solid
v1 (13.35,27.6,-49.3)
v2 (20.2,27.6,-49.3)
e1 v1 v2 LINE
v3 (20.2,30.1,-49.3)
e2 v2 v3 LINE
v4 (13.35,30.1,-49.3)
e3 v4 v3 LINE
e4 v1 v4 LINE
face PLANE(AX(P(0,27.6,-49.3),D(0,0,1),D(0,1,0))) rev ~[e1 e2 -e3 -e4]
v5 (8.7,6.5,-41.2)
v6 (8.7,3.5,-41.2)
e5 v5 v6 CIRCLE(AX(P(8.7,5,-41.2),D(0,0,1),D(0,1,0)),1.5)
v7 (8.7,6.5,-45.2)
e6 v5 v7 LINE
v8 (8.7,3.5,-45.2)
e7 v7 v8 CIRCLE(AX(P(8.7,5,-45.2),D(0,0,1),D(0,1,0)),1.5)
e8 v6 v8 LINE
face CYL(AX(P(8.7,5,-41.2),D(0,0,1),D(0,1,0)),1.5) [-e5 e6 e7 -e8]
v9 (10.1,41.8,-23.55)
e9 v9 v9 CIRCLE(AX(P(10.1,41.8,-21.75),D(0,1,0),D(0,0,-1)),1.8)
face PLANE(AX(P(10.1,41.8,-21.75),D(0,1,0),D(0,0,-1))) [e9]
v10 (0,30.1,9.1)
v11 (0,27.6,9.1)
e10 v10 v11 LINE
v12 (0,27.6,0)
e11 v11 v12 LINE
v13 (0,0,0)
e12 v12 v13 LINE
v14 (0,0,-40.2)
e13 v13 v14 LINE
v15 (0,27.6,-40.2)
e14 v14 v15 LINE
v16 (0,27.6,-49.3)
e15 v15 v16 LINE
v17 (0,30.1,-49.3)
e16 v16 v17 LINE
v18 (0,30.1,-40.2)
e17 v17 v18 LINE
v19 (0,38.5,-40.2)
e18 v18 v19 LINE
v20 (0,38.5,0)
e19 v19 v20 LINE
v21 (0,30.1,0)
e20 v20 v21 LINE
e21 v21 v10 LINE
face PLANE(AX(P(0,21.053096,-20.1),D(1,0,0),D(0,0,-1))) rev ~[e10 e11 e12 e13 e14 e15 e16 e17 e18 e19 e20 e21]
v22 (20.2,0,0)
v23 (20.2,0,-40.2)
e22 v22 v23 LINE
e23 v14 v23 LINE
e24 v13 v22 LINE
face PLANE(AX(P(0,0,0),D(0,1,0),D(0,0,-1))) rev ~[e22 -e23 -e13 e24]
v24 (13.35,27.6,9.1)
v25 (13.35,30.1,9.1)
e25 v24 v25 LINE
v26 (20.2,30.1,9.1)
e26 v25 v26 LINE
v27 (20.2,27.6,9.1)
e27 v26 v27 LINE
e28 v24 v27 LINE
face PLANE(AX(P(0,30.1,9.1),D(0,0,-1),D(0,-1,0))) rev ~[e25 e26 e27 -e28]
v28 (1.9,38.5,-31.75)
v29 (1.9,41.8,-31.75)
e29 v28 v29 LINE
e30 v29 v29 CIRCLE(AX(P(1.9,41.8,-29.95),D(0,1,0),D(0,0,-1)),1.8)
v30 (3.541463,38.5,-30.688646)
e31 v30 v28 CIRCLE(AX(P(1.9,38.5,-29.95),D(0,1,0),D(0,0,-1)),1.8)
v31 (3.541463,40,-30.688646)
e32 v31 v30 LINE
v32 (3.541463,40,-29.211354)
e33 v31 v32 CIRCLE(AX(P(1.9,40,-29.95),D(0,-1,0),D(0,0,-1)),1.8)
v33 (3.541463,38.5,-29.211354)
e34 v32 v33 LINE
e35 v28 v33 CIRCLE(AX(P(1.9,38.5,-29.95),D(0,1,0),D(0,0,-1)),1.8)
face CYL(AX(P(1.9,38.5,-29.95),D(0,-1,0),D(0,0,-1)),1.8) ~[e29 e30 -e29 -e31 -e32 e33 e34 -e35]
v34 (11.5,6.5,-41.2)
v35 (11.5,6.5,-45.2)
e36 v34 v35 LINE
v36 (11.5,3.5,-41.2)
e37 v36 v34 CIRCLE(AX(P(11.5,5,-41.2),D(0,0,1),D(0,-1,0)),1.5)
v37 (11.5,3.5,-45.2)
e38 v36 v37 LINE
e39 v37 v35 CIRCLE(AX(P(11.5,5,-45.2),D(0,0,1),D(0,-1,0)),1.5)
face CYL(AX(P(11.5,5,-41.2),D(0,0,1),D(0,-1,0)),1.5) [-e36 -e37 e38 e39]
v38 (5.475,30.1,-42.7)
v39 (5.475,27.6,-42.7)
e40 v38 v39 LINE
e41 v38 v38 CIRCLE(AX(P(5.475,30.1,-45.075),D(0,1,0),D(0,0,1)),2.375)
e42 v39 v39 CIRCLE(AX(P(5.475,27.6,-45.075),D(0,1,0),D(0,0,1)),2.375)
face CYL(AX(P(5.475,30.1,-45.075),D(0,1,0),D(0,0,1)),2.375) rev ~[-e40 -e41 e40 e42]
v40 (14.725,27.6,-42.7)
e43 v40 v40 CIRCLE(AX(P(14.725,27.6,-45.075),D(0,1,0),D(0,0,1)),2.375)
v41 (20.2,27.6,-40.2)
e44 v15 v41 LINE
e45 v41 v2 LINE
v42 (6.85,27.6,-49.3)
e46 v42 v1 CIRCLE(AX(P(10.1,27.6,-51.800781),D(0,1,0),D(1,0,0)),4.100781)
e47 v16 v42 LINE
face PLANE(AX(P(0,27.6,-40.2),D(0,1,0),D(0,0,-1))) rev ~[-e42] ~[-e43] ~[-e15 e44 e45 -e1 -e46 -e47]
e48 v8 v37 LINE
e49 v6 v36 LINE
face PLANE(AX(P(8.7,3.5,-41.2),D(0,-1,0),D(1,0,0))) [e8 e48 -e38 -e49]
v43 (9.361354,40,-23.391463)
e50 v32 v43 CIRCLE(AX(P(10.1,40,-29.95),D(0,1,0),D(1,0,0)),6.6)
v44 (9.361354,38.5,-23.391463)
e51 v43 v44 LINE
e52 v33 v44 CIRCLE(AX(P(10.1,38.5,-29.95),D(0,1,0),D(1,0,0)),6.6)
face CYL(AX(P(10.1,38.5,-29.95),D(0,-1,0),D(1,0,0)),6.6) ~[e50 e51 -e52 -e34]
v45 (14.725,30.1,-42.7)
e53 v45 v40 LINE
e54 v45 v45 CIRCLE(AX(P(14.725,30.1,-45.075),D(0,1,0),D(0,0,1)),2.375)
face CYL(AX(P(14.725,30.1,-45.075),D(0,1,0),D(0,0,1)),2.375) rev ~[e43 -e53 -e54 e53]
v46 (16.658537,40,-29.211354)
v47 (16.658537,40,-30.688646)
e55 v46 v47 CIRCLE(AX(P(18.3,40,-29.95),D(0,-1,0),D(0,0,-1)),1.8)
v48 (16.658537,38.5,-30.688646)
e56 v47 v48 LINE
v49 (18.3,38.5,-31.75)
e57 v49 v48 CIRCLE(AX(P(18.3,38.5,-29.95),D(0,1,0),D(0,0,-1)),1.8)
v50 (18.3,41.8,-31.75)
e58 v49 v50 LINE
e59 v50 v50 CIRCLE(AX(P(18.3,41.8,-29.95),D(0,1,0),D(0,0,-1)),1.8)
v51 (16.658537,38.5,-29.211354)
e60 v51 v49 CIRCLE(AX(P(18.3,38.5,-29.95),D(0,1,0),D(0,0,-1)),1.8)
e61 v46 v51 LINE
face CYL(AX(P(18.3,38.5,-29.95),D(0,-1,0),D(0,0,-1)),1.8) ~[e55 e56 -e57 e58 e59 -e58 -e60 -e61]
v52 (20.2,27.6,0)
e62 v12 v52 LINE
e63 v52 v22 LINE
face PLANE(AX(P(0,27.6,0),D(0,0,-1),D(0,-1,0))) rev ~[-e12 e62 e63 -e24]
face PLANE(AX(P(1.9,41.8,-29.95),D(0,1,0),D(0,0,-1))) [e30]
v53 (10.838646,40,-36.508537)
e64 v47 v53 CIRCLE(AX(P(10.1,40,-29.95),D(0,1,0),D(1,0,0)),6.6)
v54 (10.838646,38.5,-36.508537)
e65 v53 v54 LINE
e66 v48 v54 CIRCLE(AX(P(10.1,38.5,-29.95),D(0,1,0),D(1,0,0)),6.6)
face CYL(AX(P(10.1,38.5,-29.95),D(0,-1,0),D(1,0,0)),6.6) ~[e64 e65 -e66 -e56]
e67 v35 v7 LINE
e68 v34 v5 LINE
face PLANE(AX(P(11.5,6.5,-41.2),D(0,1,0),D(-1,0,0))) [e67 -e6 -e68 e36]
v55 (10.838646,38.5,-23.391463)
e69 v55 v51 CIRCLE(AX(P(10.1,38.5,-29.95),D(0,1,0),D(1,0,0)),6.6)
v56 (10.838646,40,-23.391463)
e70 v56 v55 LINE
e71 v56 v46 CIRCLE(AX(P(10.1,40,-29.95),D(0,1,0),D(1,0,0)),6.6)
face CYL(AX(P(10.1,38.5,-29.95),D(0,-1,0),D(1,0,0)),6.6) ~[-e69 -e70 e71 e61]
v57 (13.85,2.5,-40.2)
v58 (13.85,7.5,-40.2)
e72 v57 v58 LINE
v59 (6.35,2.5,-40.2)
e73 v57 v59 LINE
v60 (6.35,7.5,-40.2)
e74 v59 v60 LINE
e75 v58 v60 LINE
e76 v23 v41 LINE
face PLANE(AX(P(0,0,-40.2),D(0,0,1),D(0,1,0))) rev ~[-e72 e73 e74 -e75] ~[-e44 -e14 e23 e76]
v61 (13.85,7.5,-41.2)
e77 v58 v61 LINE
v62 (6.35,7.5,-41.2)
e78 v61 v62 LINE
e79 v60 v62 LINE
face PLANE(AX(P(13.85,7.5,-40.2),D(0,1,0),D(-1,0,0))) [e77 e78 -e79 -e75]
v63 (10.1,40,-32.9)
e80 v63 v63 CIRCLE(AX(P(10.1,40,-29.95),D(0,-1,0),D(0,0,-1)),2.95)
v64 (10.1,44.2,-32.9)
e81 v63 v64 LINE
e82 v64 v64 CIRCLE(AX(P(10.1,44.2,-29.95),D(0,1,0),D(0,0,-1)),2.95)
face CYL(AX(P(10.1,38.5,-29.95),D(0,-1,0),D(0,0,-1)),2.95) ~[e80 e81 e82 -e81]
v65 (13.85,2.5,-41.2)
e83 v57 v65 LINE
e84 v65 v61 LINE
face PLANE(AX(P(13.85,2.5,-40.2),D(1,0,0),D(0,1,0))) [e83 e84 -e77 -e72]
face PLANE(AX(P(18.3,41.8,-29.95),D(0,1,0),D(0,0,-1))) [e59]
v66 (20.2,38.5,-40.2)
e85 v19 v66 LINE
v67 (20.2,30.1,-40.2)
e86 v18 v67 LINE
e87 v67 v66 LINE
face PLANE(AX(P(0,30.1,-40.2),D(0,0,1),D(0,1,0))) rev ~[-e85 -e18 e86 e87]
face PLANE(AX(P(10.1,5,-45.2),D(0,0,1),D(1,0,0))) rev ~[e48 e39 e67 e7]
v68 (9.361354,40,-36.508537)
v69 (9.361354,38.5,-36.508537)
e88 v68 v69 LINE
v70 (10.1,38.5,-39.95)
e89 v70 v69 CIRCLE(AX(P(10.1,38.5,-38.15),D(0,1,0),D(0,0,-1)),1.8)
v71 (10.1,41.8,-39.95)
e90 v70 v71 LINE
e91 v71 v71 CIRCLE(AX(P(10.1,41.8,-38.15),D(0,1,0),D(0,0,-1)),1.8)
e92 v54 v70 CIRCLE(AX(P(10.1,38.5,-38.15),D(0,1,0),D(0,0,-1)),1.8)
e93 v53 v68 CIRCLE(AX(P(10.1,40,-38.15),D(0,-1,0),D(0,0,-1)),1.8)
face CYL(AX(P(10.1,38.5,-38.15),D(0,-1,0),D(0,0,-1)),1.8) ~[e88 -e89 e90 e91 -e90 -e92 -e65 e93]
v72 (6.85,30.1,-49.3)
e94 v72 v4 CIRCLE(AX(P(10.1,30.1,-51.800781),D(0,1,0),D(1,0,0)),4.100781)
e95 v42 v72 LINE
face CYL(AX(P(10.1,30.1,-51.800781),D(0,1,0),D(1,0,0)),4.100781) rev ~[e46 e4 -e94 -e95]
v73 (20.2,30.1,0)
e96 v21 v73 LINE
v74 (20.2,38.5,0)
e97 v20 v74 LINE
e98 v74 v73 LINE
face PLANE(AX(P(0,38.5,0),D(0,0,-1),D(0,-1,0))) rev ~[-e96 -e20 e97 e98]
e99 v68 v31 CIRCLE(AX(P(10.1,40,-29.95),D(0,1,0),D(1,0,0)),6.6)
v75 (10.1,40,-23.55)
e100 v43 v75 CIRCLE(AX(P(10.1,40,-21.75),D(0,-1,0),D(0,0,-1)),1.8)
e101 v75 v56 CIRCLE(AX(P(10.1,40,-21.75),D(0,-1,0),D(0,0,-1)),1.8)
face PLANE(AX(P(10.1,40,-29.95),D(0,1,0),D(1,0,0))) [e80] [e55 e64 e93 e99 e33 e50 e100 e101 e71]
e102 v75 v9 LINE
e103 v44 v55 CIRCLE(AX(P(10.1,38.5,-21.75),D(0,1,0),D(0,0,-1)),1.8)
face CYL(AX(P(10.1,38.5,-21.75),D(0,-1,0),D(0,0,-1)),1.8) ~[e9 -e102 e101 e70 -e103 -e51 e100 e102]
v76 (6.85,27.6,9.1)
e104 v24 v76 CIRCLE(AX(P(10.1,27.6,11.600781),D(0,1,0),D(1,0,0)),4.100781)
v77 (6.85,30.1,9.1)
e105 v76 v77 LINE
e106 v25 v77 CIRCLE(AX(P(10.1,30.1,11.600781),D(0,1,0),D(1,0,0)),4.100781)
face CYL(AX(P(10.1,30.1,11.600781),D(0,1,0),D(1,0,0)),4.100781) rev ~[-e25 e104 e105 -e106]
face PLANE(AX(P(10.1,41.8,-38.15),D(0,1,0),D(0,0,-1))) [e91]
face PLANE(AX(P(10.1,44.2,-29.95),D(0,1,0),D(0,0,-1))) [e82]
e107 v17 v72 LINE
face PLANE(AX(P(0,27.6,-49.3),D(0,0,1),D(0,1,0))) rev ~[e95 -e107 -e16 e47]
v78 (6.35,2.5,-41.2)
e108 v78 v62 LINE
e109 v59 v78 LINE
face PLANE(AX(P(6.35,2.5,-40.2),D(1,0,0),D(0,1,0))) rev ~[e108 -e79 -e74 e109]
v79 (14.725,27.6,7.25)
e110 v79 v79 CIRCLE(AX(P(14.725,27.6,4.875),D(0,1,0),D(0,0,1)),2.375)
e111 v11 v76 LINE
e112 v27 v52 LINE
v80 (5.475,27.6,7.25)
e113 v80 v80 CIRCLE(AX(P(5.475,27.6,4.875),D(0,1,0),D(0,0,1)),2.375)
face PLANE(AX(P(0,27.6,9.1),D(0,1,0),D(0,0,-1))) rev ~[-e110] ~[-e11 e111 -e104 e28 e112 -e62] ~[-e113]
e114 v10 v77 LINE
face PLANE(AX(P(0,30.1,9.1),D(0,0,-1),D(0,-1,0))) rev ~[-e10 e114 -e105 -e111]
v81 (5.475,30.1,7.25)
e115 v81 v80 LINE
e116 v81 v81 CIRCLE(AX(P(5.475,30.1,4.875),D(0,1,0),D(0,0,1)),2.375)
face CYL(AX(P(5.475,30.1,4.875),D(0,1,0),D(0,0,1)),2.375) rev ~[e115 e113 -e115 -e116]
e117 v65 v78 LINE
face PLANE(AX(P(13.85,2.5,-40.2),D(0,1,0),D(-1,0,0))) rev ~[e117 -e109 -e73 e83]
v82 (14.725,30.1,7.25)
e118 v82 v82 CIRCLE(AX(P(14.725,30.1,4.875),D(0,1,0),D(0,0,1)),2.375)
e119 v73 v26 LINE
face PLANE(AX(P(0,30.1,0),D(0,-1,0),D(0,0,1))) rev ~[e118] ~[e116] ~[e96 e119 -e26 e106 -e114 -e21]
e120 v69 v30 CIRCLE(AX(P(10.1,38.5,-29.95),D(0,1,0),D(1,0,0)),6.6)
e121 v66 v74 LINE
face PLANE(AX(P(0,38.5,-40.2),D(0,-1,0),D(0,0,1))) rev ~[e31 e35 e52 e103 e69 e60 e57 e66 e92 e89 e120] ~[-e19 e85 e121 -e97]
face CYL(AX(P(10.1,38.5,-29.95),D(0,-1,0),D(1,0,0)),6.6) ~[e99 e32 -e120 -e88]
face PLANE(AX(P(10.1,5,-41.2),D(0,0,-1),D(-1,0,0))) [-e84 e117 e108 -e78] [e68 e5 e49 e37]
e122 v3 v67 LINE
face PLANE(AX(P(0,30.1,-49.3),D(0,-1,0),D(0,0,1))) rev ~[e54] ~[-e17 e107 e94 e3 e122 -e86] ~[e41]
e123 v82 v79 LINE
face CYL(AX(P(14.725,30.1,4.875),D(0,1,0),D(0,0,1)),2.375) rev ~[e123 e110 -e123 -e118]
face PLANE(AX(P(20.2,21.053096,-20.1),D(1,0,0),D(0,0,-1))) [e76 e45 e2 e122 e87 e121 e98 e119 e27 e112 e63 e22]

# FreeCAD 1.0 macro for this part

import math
import FreeCAD as App
import Part
import Sketcher

V = App.Vector
Q = App.Units.Quantity

doc = App.newDocument("Part")
params = doc.addObject("Spreadsheet::Sheet", "Params")
for row, (alias, value) in enumerate([
    ("sketch1_width", "27.6 mm"),
    ("sketch1_width2", "2.5 mm"),
    ("sketch1_width3", "8.4 mm"),
    ("sketch1_height", "40.2 mm"),
    ("sketch1_height2", "9.1 mm"),
    ("pad1_length", "20.2 mm"),
    ("sketch2_diameter", "4.75 mm"),
    ("sketch3_diameter", "5.9 mm"),
    ("pad2_length", "5.7 mm"),
    ("sketch4_diameter", "3.6 mm"),
    ("pad3_length", "3.3 mm"),
    ("sketch5_diameter", "13.2 mm"),
    ("pad4_length", "1.5 mm"),
    ("sketch6_height", "5 mm"),
    ("sketch6_width", "7.5 mm"),
    ("pad5_length", "1 mm"),
    ("sketch7_radius", "1.5 mm"),
    ("sketch7_width", "2.8 mm"),
    ("pad6_length", "4 mm"),
], start=1):
    params.set(f"A{row}", alias)
    params.set(f"B{row}", "=" + value)
    params.setAlias(f"B{row}", alias)

body = doc.addObject("PartDesign::Body", "Body")

# Sketch on YZ plane
sketch1 = body.newObject("Sketcher::SketchObject", "Sketch")
sketch1.AttachmentSupport = (doc.getObject("YZ_Plane"), [""])
sketch1.MapMode = "FlatFace"
sketch1.addGeometry([
    Part.LineSegment(V(0, 0, 0), V(0, -40.2, 0)),  # 0
    Part.LineSegment(V(0, -40.2, 0), V(27.6, -40.2, 0)),  # 1
    Part.LineSegment(V(27.6, -40.2, 0), V(27.6, -49.3, 0)),  # 2
    Part.LineSegment(V(27.6, -49.3, 0), V(30.1, -49.3, 0)),  # 3
    Part.LineSegment(V(30.1, -49.3, 0), V(30.1, -40.2, 0)),  # 4
    Part.LineSegment(V(30.1, -40.2, 0), V(38.5, -40.2, 0)),  # 5
    Part.LineSegment(V(38.5, -40.2, 0), V(38.5, 0, 0)),  # 6
    Part.LineSegment(V(38.5, 0, 0), V(30.1, 0, 0)),  # 7
    Part.LineSegment(V(30.1, 0, 0), V(30.1, 9.1, 0)),  # 8
    Part.LineSegment(V(30.1, 9.1, 0), V(27.6, 9.1, 0)),  # 9
    Part.LineSegment(V(27.6, 9.1, 0), V(27.6, 0, 0)),  # 10
    Part.LineSegment(V(27.6, 0, 0), V(0, 0, 0)),  # 11
], False)
sketch1.addConstraint([
    Sketcher.Constraint("Coincident", 0, 2, 1, 1),
    Sketcher.Constraint("Coincident", 1, 2, 2, 1),
    Sketcher.Constraint("Coincident", 2, 2, 3, 1),
    Sketcher.Constraint("Coincident", 3, 2, 4, 1),
    Sketcher.Constraint("Coincident", 4, 2, 5, 1),
    Sketcher.Constraint("Coincident", 5, 2, 6, 1),
    Sketcher.Constraint("Coincident", 6, 2, 7, 1),
    Sketcher.Constraint("Coincident", 7, 2, 8, 1),
    Sketcher.Constraint("Coincident", 8, 2, 9, 1),
    Sketcher.Constraint("Coincident", 9, 2, 10, 1),
    Sketcher.Constraint("Coincident", 10, 2, 11, 1),
    Sketcher.Constraint("Coincident", 11, 2, 0, 1),
    Sketcher.Constraint("Vertical", 0),
    Sketcher.Constraint("Horizontal", 1),
    Sketcher.Constraint("Vertical", 2),
    Sketcher.Constraint("Horizontal", 3),
    Sketcher.Constraint("Vertical", 4),
    Sketcher.Constraint("Horizontal", 5),
    Sketcher.Constraint("Vertical", 6),
    Sketcher.Constraint("Horizontal", 7),
    Sketcher.Constraint("Vertical", 8),
    Sketcher.Constraint("Horizontal", 9),
    Sketcher.Constraint("Vertical", 10),
    Sketcher.Constraint("Horizontal", 11),
    Sketcher.Constraint("Coincident", 11, 2, -1, 1),
    Sketcher.Constraint("PointOnObject", 6, 2, -1),
    Sketcher.Constraint("Horizontal", 1, 2, 4, 2),
    Sketcher.Constraint("Vertical", 4, 2, 7, 2),
    Sketcher.Constraint("Vertical", 2, 2, 9, 2),
    Sketcher.Constraint("Equal", 4, 8),
    Sketcher.Constraint("DistanceX", 1, 1, 1, 2, Q("27.6 mm")),
    Sketcher.Constraint("DistanceX", 3, 1, 3, 2, Q("2.5 mm")),
    Sketcher.Constraint("DistanceX", 5, 1, 5, 2, Q("8.4 mm")),
    Sketcher.Constraint("DistanceY", 0, 2, 0, 1, Q("40.2 mm")),
    Sketcher.Constraint("DistanceY", 2, 2, 2, 1, Q("9.1 mm")),
])
sketch1.setExpression("Constraints[30]", "Params.sketch1_width")
sketch1.setExpression("Constraints[31]", "Params.sketch1_width2")
sketch1.setExpression("Constraints[32]", "Params.sketch1_width3")
sketch1.setExpression("Constraints[33]", "Params.sketch1_height")
sketch1.setExpression("Constraints[34]", "Params.sketch1_height2")
pad1 = body.newObject("PartDesign::Pad", "Pad")
pad1.Profile = sketch1
pad1.setExpression("Length", "Params.pad1_length")

# Sketch on XZ plane
sketch2 = body.newObject("Sketcher::SketchObject", "Sketch001")
sketch2.AttachmentSupport = (doc.getObject("XZ_Plane"), [""])
sketch2.MapMode = "FlatFace"
sketch2.AttachmentOffset = App.Placement(V(0, 0, -30.1), App.Rotation())
sketch2.addGeometry([
    Part.Circle(V(10.1, -51.800781, 0), V(0, 0, 1), 4.100781),  # 0
    Part.Circle(V(5.475, -45.075, 0), V(0, 0, 1), 2.375),  # 1
    Part.Circle(V(14.725, -45.075, 0), V(0, 0, 1), 2.375),  # 2
    Part.Circle(V(14.725, 4.875, 0), V(0, 0, 1), 2.375),  # 3
    Part.Circle(V(5.475, 4.875, 0), V(0, 0, 1), 2.375),  # 4
    Part.Circle(V(10.1, 11.600781, 0), V(0, 0, 1), 4.100781),  # 5
], False)
sketch2.addConstraint([
    Sketcher.Constraint("Equal", 1, 2),
    Sketcher.Constraint("Equal", 2, 3),
    Sketcher.Constraint("Equal", 3, 4),
    Sketcher.Constraint("Equal", 0, 5),
    Sketcher.Constraint("Horizontal", 1, 3, 2, 3),
    Sketcher.Constraint("Horizontal", 3, 3, 4, 3),
    Sketcher.Constraint("Vertical", 2, 3, 3, 3),
    Sketcher.Constraint("Vertical", 1, 3, 4, 3),
    Sketcher.Constraint("Vertical", 0, 3, 5, 3),
    Sketcher.Constraint("Diameter", 1, Q("4.75 mm")),
    Sketcher.Constraint("DistanceX", -1, 1, 0, 3, Q("10.1 mm")),
    Sketcher.Constraint("DistanceX", 1, 3, 2, 3, Q("9.25 mm")),
    Sketcher.Constraint("DistanceY", 2, 3, 3, 3, Q("49.95 mm")),
    Sketcher.Constraint("Diameter", 0, Q("8.201562 mm")),
    Sketcher.Constraint("DistanceX", -1, 1, 1, 3, Q("5.475 mm")),
    Sketcher.Constraint("DistanceY", 1, 3, -1, 1, Q("45.075 mm")),
    Sketcher.Constraint("DistanceY", 0, 3, -1, 1, Q("51.800781 mm")),
    Sketcher.Constraint("DistanceY", -1, 1, 5, 3, Q("11.600781 mm")),
])
sketch2.setExpression("Constraints[9]", "Params.sketch2_diameter")
pocket1 = body.newObject("PartDesign::Pocket", "Pocket")
pocket1.Profile = sketch2
pocket1.Type = "ThroughAll"
pocket1.Reversed = True

# Sketch on XZ plane
sketch3 = body.newObject("Sketcher::SketchObject", "Sketch002")
sketch3.AttachmentSupport = (doc.getObject("XZ_Plane"), [""])
sketch3.MapMode = "FlatFace"
sketch3.AttachmentOffset = App.Placement(V(0, 0, -38.5), App.Rotation())
sketch3.addGeometry(Part.Circle(V(10.1, -29.95, 0), V(0, 0, 1), 2.95), False)
sketch3.addConstraint([
    Sketcher.Constraint("Diameter", 0, Q("5.9 mm")),
    Sketcher.Constraint("DistanceX", -1, 1, 0, 3, Q("10.1 mm")),
    Sketcher.Constraint("DistanceY", 0, 3, -1, 1, Q("29.95 mm")),
])
sketch3.setExpression("Constraints[0]", "Params.sketch3_diameter")
pad2 = body.newObject("PartDesign::Pad", "Pad001")
pad2.Profile = sketch3
pad2.setExpression("Length", "Params.pad2_length")
pad2.Reversed = True

# Sketch on XZ plane
sketch4 = body.newObject("Sketcher::SketchObject", "Sketch003")
sketch4.AttachmentSupport = (doc.getObject("XZ_Plane"), [""])
sketch4.MapMode = "FlatFace"
sketch4.AttachmentOffset = App.Placement(V(0, 0, -38.5), App.Rotation())
sketch4.addGeometry([
    Part.Circle(V(1.9, -29.95, 0), V(0, 0, 1), 1.8),
    Part.Circle(V(10.1, -38.15, 0), V(0, 0, 1), 1.8),
    Part.Circle(V(18.3, -29.95, 0), V(0, 0, 1), 1.8),
    Part.Circle(V(10.1, -21.75, 0), V(0, 0, 1), 1.8),
], False)
sketch4.addConstraint([
    Sketcher.Constraint("Equal", 0, 1),
    Sketcher.Constraint("Equal", 1, 2),
    Sketcher.Constraint("Equal", 2, 3),
    Sketcher.Constraint("Horizontal", 0, 3, 2, 3),
    Sketcher.Constraint("Vertical", 1, 3, 3, 3),
    Sketcher.Constraint("Diameter", 0, Q("3.6 mm")),
    Sketcher.Constraint("DistanceX", -1, 1, 0, 3, Q("1.9 mm")),
    Sketcher.Constraint("DistanceX", -1, 1, 1, 3, Q("10.1 mm")),
    Sketcher.Constraint("DistanceX", -1, 1, 2, 3, Q("18.3 mm")),
    Sketcher.Constraint("DistanceY", 1, 3, 0, 3, Q("8.2 mm")),
    Sketcher.Constraint("DistanceY", 0, 3, 3, 3, Q("8.2 mm")),
    Sketcher.Constraint("DistanceY", 0, 3, -1, 1, Q("29.95 mm")),
])
sketch4.setExpression("Constraints[5]", "Params.sketch4_diameter")
pad3 = body.newObject("PartDesign::Pad", "Pad002")
pad3.Profile = sketch4
pad3.setExpression("Length", "Params.pad3_length")
pad3.Reversed = True

# Sketch on XZ plane
sketch5 = body.newObject("Sketcher::SketchObject", "Sketch004")
sketch5.AttachmentSupport = (doc.getObject("XZ_Plane"), [""])
sketch5.MapMode = "FlatFace"
sketch5.AttachmentOffset = App.Placement(V(0, 0, -38.5), App.Rotation())
sketch5.addGeometry(Part.Circle(V(10.1, -29.95, 0), V(0, 0, 1), 6.6), False)
sketch5.addConstraint([
    Sketcher.Constraint("Diameter", 0, Q("13.2 mm")),
    Sketcher.Constraint("DistanceX", -1, 1, 0, 3, Q("10.1 mm")),
    Sketcher.Constraint("DistanceY", 0, 3, -1, 1, Q("29.95 mm")),
])
sketch5.setExpression("Constraints[0]", "Params.sketch5_diameter")
pad4 = body.newObject("PartDesign::Pad", "Pad003")
pad4.Profile = sketch5
pad4.setExpression("Length", "Params.pad4_length")
pad4.Reversed = True

# Sketch on XY plane
sketch6 = body.newObject("Sketcher::SketchObject", "Sketch005")
sketch6.AttachmentSupport = (doc.getObject("XY_Plane"), [""])
sketch6.MapMode = "FlatFace"
sketch6.AttachmentOffset = App.Placement(V(0, 0, -40.2), App.Rotation())
sketch6.addGeometry([
    Part.LineSegment(V(13.85, 7.5, 0), V(13.85, 2.5, 0)),
    Part.LineSegment(V(13.85, 2.5, 0), V(6.35, 2.5, 0)),
    Part.LineSegment(V(6.35, 2.5, 0), V(6.35, 7.5, 0)),
    Part.LineSegment(V(6.35, 7.5, 0), V(13.85, 7.5, 0)),
], False)
sketch6.addConstraint([
    Sketcher.Constraint("Coincident", 0, 2, 1, 1),
    Sketcher.Constraint("Coincident", 1, 2, 2, 1),
    Sketcher.Constraint("Coincident", 2, 2, 3, 1),
    Sketcher.Constraint("Coincident", 3, 2, 0, 1),
    Sketcher.Constraint("Vertical", 0),
    Sketcher.Constraint("Horizontal", 1),
    Sketcher.Constraint("Vertical", 2),
    Sketcher.Constraint("Horizontal", 3),
    Sketcher.Constraint("DistanceY", 0, 2, 0, 1, Q("5 mm")),
    Sketcher.Constraint("DistanceX", 1, 2, 1, 1, Q("7.5 mm")),
    Sketcher.Constraint("DistanceY", -1, 1, 0, 2, Q("2.5 mm")),
    Sketcher.Constraint("DistanceX", -1, 1, 0, 2, Q("13.85 mm")),
])
sketch6.setExpression("Constraints[8]", "Params.sketch6_height")
sketch6.setExpression("Constraints[9]", "Params.sketch6_width")
pad5 = body.newObject("PartDesign::Pad", "Pad004")
pad5.Profile = sketch6
pad5.setExpression("Length", "Params.pad5_length")
pad5.Reversed = True

# Sketch on XY plane
sketch7 = body.newObject("Sketcher::SketchObject", "Sketch006")
sketch7.AttachmentSupport = (doc.getObject("XY_Plane"), [""])
sketch7.MapMode = "FlatFace"
sketch7.AttachmentOffset = App.Placement(V(0, 0, -41.2), App.Rotation())
sketch7.addGeometry([
    Part.LineSegment(V(8.7, 6.5, 0), V(11.5, 6.5, 0)),
    Part.ArcOfCircle(Part.Circle(V(11.5, 5, 0), V(0, 0, 1), 1.5), math.radians(-90), math.radians(90)),
    Part.LineSegment(V(11.5, 3.5, 0), V(8.7, 3.5, 0)),
    Part.ArcOfCircle(Part.Circle(V(8.7, 5, 0), V(0, 0, 1), 1.5), math.radians(90), math.radians(270)),
], False)
sketch7.addConstraint([
    Sketcher.Constraint("Tangent", 0, 2, 1, 2),
    Sketcher.Constraint("Tangent", 1, 1, 2, 1),
    Sketcher.Constraint("Tangent", 2, 2, 3, 2),
    Sketcher.Constraint("Tangent", 3, 1, 0, 1),
    Sketcher.Constraint("Horizontal", 0),
    Sketcher.Constraint("Horizontal", 2),
    Sketcher.Constraint("Radius", 1, Q("1.5 mm")),
    Sketcher.Constraint("DistanceX", 0, 1, 0, 2, Q("2.8 mm")),
    Sketcher.Constraint("DistanceY", -1, 1, 1, 3, Q("5 mm")),
    Sketcher.Constraint("DistanceX", -1, 1, 1, 3, Q("11.5 mm")),
])
sketch7.setExpression("Constraints[6]", "Params.sketch7_radius")
sketch7.setExpression("Constraints[7]", "Params.sketch7_width")
pad6 = body.newObject("PartDesign::Pad", "Pad005")
pad6.Profile = sketch7
pad6.setExpression("Length", "Params.pad6_length")
pad6.Reversed = True

doc.recompute()
